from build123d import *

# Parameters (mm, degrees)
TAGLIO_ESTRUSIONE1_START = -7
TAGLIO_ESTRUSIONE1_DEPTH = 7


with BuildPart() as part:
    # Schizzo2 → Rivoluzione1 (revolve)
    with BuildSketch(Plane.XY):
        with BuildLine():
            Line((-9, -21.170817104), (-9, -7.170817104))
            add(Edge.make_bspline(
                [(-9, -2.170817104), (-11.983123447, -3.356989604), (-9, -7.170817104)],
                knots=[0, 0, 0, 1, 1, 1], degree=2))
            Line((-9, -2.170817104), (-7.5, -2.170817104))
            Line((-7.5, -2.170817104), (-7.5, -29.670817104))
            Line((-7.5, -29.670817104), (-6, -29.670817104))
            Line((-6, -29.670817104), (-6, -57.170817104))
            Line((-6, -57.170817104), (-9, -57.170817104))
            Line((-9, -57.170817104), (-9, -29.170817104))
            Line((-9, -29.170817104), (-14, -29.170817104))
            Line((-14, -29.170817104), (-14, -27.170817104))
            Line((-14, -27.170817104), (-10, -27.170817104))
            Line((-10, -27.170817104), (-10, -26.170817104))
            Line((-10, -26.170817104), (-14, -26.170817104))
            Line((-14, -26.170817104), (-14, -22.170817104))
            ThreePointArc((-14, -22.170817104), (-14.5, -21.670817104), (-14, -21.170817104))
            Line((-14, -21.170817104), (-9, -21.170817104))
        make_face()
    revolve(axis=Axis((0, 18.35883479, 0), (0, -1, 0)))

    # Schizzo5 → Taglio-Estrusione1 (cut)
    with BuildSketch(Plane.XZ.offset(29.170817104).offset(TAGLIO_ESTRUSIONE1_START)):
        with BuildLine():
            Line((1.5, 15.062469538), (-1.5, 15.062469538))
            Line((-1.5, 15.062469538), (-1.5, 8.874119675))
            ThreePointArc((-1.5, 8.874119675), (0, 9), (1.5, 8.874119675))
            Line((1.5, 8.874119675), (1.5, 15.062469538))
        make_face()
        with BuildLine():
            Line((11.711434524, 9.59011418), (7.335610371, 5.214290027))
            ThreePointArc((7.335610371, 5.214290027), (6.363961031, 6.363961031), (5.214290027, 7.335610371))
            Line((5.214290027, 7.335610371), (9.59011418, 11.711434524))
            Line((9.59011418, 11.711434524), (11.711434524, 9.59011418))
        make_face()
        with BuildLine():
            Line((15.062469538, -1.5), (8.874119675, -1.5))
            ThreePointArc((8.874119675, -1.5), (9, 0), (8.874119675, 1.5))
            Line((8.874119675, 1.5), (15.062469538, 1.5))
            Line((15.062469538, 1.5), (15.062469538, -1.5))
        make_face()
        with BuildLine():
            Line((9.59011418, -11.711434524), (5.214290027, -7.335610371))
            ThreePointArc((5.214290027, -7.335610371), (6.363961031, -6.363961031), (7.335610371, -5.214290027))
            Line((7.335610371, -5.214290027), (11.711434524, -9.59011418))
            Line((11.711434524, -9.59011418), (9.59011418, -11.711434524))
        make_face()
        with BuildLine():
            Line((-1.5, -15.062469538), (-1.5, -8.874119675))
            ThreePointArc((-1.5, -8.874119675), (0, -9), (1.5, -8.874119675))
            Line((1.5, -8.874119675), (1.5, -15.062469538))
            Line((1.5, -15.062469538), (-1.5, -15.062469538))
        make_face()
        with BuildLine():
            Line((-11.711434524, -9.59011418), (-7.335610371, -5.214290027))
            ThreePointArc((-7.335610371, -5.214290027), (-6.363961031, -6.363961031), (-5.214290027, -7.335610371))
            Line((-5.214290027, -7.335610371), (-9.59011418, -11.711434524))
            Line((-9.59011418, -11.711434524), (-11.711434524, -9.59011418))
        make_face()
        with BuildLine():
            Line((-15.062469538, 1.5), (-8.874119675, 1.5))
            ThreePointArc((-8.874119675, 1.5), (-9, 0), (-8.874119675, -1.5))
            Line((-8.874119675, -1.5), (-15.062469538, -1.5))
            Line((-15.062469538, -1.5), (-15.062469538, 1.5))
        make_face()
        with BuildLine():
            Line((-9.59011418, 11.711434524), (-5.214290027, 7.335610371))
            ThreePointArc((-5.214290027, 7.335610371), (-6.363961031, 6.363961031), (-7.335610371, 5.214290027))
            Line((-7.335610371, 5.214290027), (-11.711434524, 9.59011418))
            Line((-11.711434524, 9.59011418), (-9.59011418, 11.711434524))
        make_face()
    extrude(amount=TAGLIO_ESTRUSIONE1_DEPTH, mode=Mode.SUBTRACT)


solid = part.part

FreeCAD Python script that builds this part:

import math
import FreeCAD as App
import Part
import Sketcher

V = App.Vector
Q = App.Units.Quantity

doc = App.newDocument("Part")
body = doc.addObject("PartDesign::Body", "Body")

# Sketch on XY plane
sketch1 = doc.addObject("Sketcher::SketchObject", "Sketch")
body.addObject(sketch1)
sketch1.AttachmentSupport = (doc.XY_Plane, [""])
sketch1.MapMode = "FlatFace"
sketch1.addGeometry(Part.LineSegment(V(-9, -7.170817, 0), V(-9, -21.170817, 0)), False)
sketch1.addGeometry(Part.LineSegment(V(-9, -21.170817, 0), V(-14, -21.170817, 0)), False)
sketch1.addGeometry(Part.ArcOfCircle(Part.Circle(V(-14, -21.670817, 0), V(0, 0, 1), 0.5), math.radians(90), math.radians(270)), False)
sketch1.addGeometry(Part.LineSegment(V(-14, -22.170817, 0), V(-14, -26.170817, 0)), False)
sketch1.addGeometry(Part.LineSegment(V(-14, -26.170817, 0), V(-10, -26.170817, 0)), False)
sketch1.addGeometry(Part.LineSegment(V(-10, -26.170817, 0), V(-10, -27.170817, 0)), False)
sketch1.addGeometry(Part.LineSegment(V(-10, -27.170817, 0), V(-14, -27.170817, 0)), False)
sketch1.addGeometry(Part.LineSegment(V(-14, -27.170817, 0), V(-14, -29.170817, 0)), False)
sketch1.addGeometry(Part.LineSegment(V(-14, -29.170817, 0), V(-9, -29.170817, 0)), False)
sketch1.addGeometry(Part.LineSegment(V(-9, -29.170817, 0), V(-9, -57.170817, 0)), False)
sketch1.addGeometry(Part.LineSegment(V(-9, -57.170817, 0), V(-6, -57.170817, 0)), False)
sketch1.addGeometry(Part.LineSegment(V(-6, -57.170817, 0), V(-6, -29.670817, 0)), False)
sketch1.addGeometry(Part.LineSegment(V(-6, -29.670817, 0), V(-7.5, -29.670817, 0)), False)
sketch1.addGeometry(Part.LineSegment(V(-7.5, -29.670817, 0), V(-7.5, -2.170817, 0)), False)
sketch1.addGeometry(Part.LineSegment(V(-7.5, -2.170817, 0), V(-9, -2.170817, 0)), False)
sketch1.addGeometry(Part.BSplineCurve([V(-9, -2.170817, 0), V(-11.983123, -3.35699, 0), V(-9, -7.170817, 0)], [3, 3], [0, 1], False, 2, [1, 1, 1], False), False)
sketch1.addConstraint(Sketcher.Constraint("Block", 15))
sketch1.addConstraint(Sketcher.Constraint("Coincident", 0, 2, 1, 1))
sketch1.addConstraint(Sketcher.Constraint("Coincident", 1, 2, 2, 1))
sketch1.addConstraint(Sketcher.Constraint("Coincident", 2, 2, 3, 1))
sketch1.addConstraint(Sketcher.Constraint("Coincident", 3, 2, 4, 1))
sketch1.addConstraint(Sketcher.Constraint("Coincident", 4, 2, 5, 1))
sketch1.addConstraint(Sketcher.Constraint("Coincident", 5, 2, 6, 1))
sketch1.addConstraint(Sketcher.Constraint("Coincident", 6, 2, 7, 1))
sketch1.addConstraint(Sketcher.Constraint("Coincident", 7, 2, 8, 1))
sketch1.addConstraint(Sketcher.Constraint("Coincident", 8, 2, 9, 1))
sketch1.addConstraint(Sketcher.Constraint("Coincident", 9, 2, 10, 1))
sketch1.addConstraint(Sketcher.Constraint("Coincident", 10, 2, 11, 1))
sketch1.addConstraint(Sketcher.Constraint("Coincident", 11, 2, 12, 1))
sketch1.addConstraint(Sketcher.Constraint("Coincident", 12, 2, 13, 1))
sketch1.addConstraint(Sketcher.Constraint("Coincident", 13, 2, 14, 1))
sketch1.addConstraint(Sketcher.Constraint("Coincident", 14, 2, 15, 1))
sketch1.addConstraint(Sketcher.Constraint("Coincident", 15, 2, 0, 1))
sketch1.addConstraint(Sketcher.Constraint("Vertical", 0))
sketch1.addConstraint(Sketcher.Constraint("Horizontal", 1))
sketch1.addConstraint(Sketcher.Constraint("Vertical", 3))
sketch1.addConstraint(Sketcher.Constraint("Horizontal", 4))
sketch1.addConstraint(Sketcher.Constraint("Vertical", 5))
sketch1.addConstraint(Sketcher.Constraint("Horizontal", 6))
sketch1.addConstraint(Sketcher.Constraint("Vertical", 7))
sketch1.addConstraint(Sketcher.Constraint("Horizontal", 8))
sketch1.addConstraint(Sketcher.Constraint("Vertical", 9))
sketch1.addConstraint(Sketcher.Constraint("Horizontal", 10))
sketch1.addConstraint(Sketcher.Constraint("Vertical", 11))
sketch1.addConstraint(Sketcher.Constraint("Horizontal", 12))
sketch1.addConstraint(Sketcher.Constraint("Vertical", 13))
sketch1.addConstraint(Sketcher.Constraint("Horizontal", 14))
sketch1.addConstraint(Sketcher.Constraint("Radius", 2, Q("0.5 mm")))
sketch1.addConstraint(Sketcher.Constraint("DistanceX", 1, 2, 1, 1, Q("5 mm")))
sketch1.addConstraint(Sketcher.Constraint("DistanceX", 4, 1, 4, 2, Q("4 mm")))
sketch1.addConstraint(Sketcher.Constraint("DistanceX", 6, 2, 6, 1, Q("4 mm")))
sketch1.addConstraint(Sketcher.Constraint("DistanceX", 8, 1, 8, 2, Q("5 mm")))
sketch1.addConstraint(Sketcher.Constraint("DistanceX", 10, 1, 10, 2, Q("3 mm")))
sketch1.addConstraint(Sketcher.Constraint("DistanceY", 0, 2, 0, 1, Q("14 mm")))
sketch1.addConstraint(Sketcher.Constraint("DistanceY", 3, 2, 3, 1, Q("4 mm")))
sketch1.addConstraint(Sketcher.Constraint("DistanceY", 5, 2, 5, 1, Q("1 mm")))
sketch1.addConstraint(Sketcher.Constraint("DistanceY", 7, 2, 7, 1, Q("2 mm")))
sketch1.addConstraint(Sketcher.Constraint("DistanceY", 9, 2, 9, 1, Q("28 mm")))
sketch1.addConstraint(Sketcher.Constraint("DistanceX", 12, 2, 12, 1, Q("1.5 mm")))
sketch1.addConstraint(Sketcher.Constraint("DistanceX", 14, 2, 14, 1, Q("1.5 mm")))
sketch1.addConstraint(Sketcher.Constraint("DistanceY", 11, 1, 11, 2, Q("27.5 mm")))
sketch1.addConstraint(Sketcher.Constraint("DistanceX", 2, 3, -1, 1, Q("14 mm")))
revolution = doc.addObject("PartDesign::Revolution", "Revolution")
body.addObject(revolution)
revolution.Profile = sketch1
revolution.ReferenceAxis = (sketch1, ["V_Axis"])
revolution.Angle = 360

# Sketch on XZ plane
sketch2 = doc.addObject("Sketcher::SketchObject", "Sketch001")
body.addObject(sketch2)
sketch2.AttachmentSupport = (doc.XZ_Plane, [""])
sketch2.MapMode = "FlatFace"
sketch2.AttachmentOffset = App.Placement(V(0, 0, 22.170817), App.Rotation())
sketch2.addGeometry(Part.LineSegment(V(1.5, 15.1, 0), V(-1.5, 15.1, 0)), False)
sketch2.addGeometry(Part.LineSegment(V(-1.5, 15.1, 0), V(-1.5, 8.9, 0)), False)
sketch2.addGeometry(Part.ArcOfCircle(Part.Circle(V(0, 0, 0), V(0, 0, 1), 9), math.radians(80.41), math.radians(99.59)), False)
sketch2.addGeometry(Part.LineSegment(V(1.5, 8.9, 0), V(1.5, 15.1, 0)), False)
sketch2.addGeometry(Part.LineSegment(V(7.3, 5.2, 0), V(11.7, 9.6, 0)), False)
sketch2.addGeometry(Part.LineSegment(V(11.7, 9.6, 0), V(9.6, 11.7, 0)), False)
sketch2.addGeometry(Part.LineSegment(V(9.6, 11.7, 0), V(5.2, 7.3, 0)), False)
sketch2.addGeometry(Part.ArcOfCircle(Part.Circle(V(0, 0, 0), V(0, 0, 1), 9), math.radians(35.41), math.radians(54.59)), False)
sketch2.addGeometry(Part.LineSegment(V(8.9, -1.5, 0), V(15.1, -1.5, 0)), False)
sketch2.addGeometry(Part.LineSegment(V(15.1, -1.5, 0), V(15.1, 1.5, 0)), False)
sketch2.addGeometry(Part.LineSegment(V(15.1, 1.5, 0), V(8.9, 1.5, 0)), False)
sketch2.addGeometry(Part.ArcOfCircle(Part.Circle(V(0, 0, 0), V(0, 0, 1), 9), math.radians(-9.59), math.radians(9.59)), False)
sketch2.addGeometry(Part.LineSegment(V(5.2, -7.3, 0), V(9.6, -11.7, 0)), False)
sketch2.addGeometry(Part.LineSegment(V(9.6, -11.7, 0), V(11.7, -9.6, 0)), False)
sketch2.addGeometry(Part.LineSegment(V(11.7, -9.6, 0), V(7.3, -5.2, 0)), False)
sketch2.addGeometry(Part.ArcOfCircle(Part.Circle(V(0, 0, 0), V(0, 0, 1), 9), math.radians(-54.59), math.radians(-35.41)), False)
sketch2.addGeometry(Part.LineSegment(V(-1.5, -8.9, 0), V(-1.5, -15.1, 0)), False)
sketch2.addGeometry(Part.LineSegment(V(-1.5, -15.1, 0), V(1.5, -15.1, 0)), False)
sketch2.addGeometry(Part.LineSegment(V(1.5, -15.1, 0), V(1.5, -8.9, 0)), False)
sketch2.addGeometry(Part.ArcOfCircle(Part.Circle(V(0, 0, 0), V(0, 0, 1), 9), math.radians(-99.59), math.radians(-80.41)), False)
sketch2.addGeometry(Part.LineSegment(V(-7.3, -5.2, 0), V(-11.7, -9.6, 0)), False)
sketch2.addGeometry(Part.LineSegment(V(-11.7, -9.6, 0), V(-9.6, -11.7, 0)), False)
sketch2.addGeometry(Part.LineSegment(V(-9.6, -11.7, 0), V(-5.2, -7.3, 0)), False)
sketch2.addGeometry(Part.ArcOfCircle(Part.Circle(V(0, 0, 0), V(0, 0, 1), 9), math.radians(-144.59), math.radians(-125.41)), False)
sketch2.addGeometry(Part.LineSegment(V(-8.9, 1.5, 0), V(-15.1, 1.5, 0)), False)
sketch2.addGeometry(Part.LineSegment(V(-15.1, 1.5, 0), V(-15.1, -1.5, 0)), False)
sketch2.addGeometry(Part.LineSegment(V(-15.1, -1.5, 0), V(-8.9, -1.5, 0)), False)
sketch2.addGeometry(Part.ArcOfCircle(Part.Circle(V(0, 0, 0), V(0, 0, 1), 9), math.radians(170.41), math.radians(189.59)), False)
sketch2.addGeometry(Part.LineSegment(V(-5.2, 7.3, 0), V(-9.6, 11.7, 0)), False)
sketch2.addGeometry(Part.LineSegment(V(-9.6, 11.7, 0), V(-11.7, 9.6, 0)), False)
sketch2.addGeometry(Part.LineSegment(V(-11.7, 9.6, 0), V(-7.3, 5.2, 0)), False)
sketch2.addGeometry(Part.ArcOfCircle(Part.Circle(V(0, 0, 0), V(0, 0, 1), 9), math.radians(125.41), math.radians(144.59)), False)
sketch2.addConstraint(Sketcher.Constraint("Coincident", 0, 2, 1, 1))
sketch2.addConstraint(Sketcher.Constraint("Coincident", 1, 2, 2, 2))
sketch2.addConstraint(Sketcher.Constraint("Coincident", 2, 1, 3, 1))
sketch2.addConstraint(Sketcher.Constraint("Coincident", 3, 2, 0, 1))
sketch2.addConstraint(Sketcher.Constraint("Coincident", 4, 2, 5, 1))
sketch2.addConstraint(Sketcher.Constraint("Coincident", 5, 2, 6, 1))
sketch2.addConstraint(Sketcher.Constraint("Coincident", 6, 2, 7, 2))
sketch2.addConstraint(Sketcher.Constraint("Coincident", 7, 1, 4, 1))
sketch2.addConstraint(Sketcher.Constraint("Coincident", 8, 2, 9, 1))
sketch2.addConstraint(Sketcher.Constraint("Coincident", 9, 2, 10, 1))
sketch2.addConstraint(Sketcher.Constraint("Coincident", 10, 2, 11, 2))
sketch2.addConstraint(Sketcher.Constraint("Coincident", 11, 1, 8, 1))
sketch2.addConstraint(Sketcher.Constraint("Coincident", 12, 2, 13, 1))
sketch2.addConstraint(Sketcher.Constraint("Coincident", 13, 2, 14, 1))
sketch2.addConstraint(Sketcher.Constraint("Coincident", 14, 2, 15, 2))
sketch2.addConstraint(Sketcher.Constraint("Coincident", 15, 1, 12, 1))
sketch2.addConstraint(Sketcher.Constraint("Coincident", 16, 2, 17, 1))
sketch2.addConstraint(Sketcher.Constraint("Coincident", 17, 2, 18, 1))
sketch2.addConstraint(Sketcher.Constraint("Coincident", 18, 2, 19, 2))
sketch2.addConstraint(Sketcher.Constraint("Coincident", 19, 1, 16, 1))
sketch2.addConstraint(Sketcher.Constraint("Coincident", 20, 2, 21, 1))
sketch2.addConstraint(Sketcher.Constraint("Coincident", 21, 2, 22, 1))
sketch2.addConstraint(Sketcher.Constraint("Coincident", 22, 2, 23, 2))
sketch2.addConstraint(Sketcher.Constraint("Coincident", 23, 1, 20, 1))
sketch2.addConstraint(Sketcher.Constraint("Coincident", 24, 2, 25, 1))
sketch2.addConstraint(Sketcher.Constraint("Coincident", 25, 2, 26, 1))
sketch2.addConstraint(Sketcher.Constraint("Coincident", 26, 2, 27, 2))
sketch2.addConstraint(Sketcher.Constraint("Coincident", 27, 1, 24, 1))
sketch2.addConstraint(Sketcher.Constraint("Coincident", 28, 2, 29, 1))
sketch2.addConstraint(Sketcher.Constraint("Coincident", 29, 2, 30, 1))
sketch2.addConstraint(Sketcher.Constraint("Coincident", 30, 2, 31, 2))
sketch2.addConstraint(Sketcher.Constraint("Coincident", 31, 1, 28, 1))
sketch2.addConstraint(Sketcher.Constraint("Horizontal", 0))
sketch2.addConstraint(Sketcher.Constraint("Vertical", 1))
sketch2.addConstraint(Sketcher.Constraint("Vertical", 3))
sketch2.addConstraint(Sketcher.Constraint("Horizontal", 8))
sketch2.addConstraint(Sketcher.Constraint("Vertical", 9))
sketch2.addConstraint(Sketcher.Constraint("Horizontal", 10))
sketch2.addConstraint(Sketcher.Constraint("Vertical", 16))
sketch2.addConstraint(Sketcher.Constraint("Horizontal", 17))
sketch2.addConstraint(Sketcher.Constraint("Vertical", 18))
sketch2.addConstraint(Sketcher.Constraint("Horizontal", 24))
sketch2.addConstraint(Sketcher.Constraint("Vertical", 25))
sketch2.addConstraint(Sketcher.Constraint("Horizontal", 26))
sketch2.addConstraint(Sketcher.Constraint("Coincident", 2, 3, -1, 1))
sketch2.addConstraint(Sketcher.Constraint("Coincident", 7, 3, -1, 1))
sketch2.addConstraint(Sketcher.Constraint("Coincident", 11, 3, -1, 1))
sketch2.addConstraint(Sketcher.Constraint("Coincident", 15, 3, -1, 1))
sketch2.addConstraint(Sketcher.Constraint("Coincident", 19, 3, -1, 1))
sketch2.addConstraint(Sketcher.Constraint("Coincident", 23, 3, -1, 1))
sketch2.addConstraint(Sketcher.Constraint("Coincident", 27, 3, -1, 1))
sketch2.addConstraint(Sketcher.Constraint("Coincident", 31, 3, -1, 1))
sketch2.addConstraint(Sketcher.Constraint("Equal", 2, 7))
sketch2.addConstraint(Sketcher.Constraint("Equal", 7, 11))
sketch2.addConstraint(Sketcher.Constraint("Equal", 11, 15))
sketch2.addConstraint(Sketcher.Constraint("Equal", 15, 19))
sketch2.addConstraint(Sketcher.Constraint("Equal", 19, 23))
sketch2.addConstraint(Sketcher.Constraint("Equal", 23, 27))
sketch2.addConstraint(Sketcher.Constraint("Equal", 27, 31))
sketch2.addConstraint(Sketcher.Constraint("Symmetric", 3, 2, 16, 2, -1, 1))
sketch2.addConstraint(Sketcher.Constraint("Symmetric", 4, 2, 20, 2, -1, 1))
sketch2.addConstraint(Sketcher.Constraint("Symmetric", 5, 2, 21, 2, -1, 1))
sketch2.addConstraint(Sketcher.Constraint("Symmetric", 8, 2, 24, 2, -1, 1))
sketch2.addConstraint(Sketcher.Constraint("Symmetric", 12, 2, 28, 2, -1, 1))
sketch2.addConstraint(Sketcher.Constraint("Symmetric", 13, 2, 29, 2, -1, 1))
sketch2.addConstraint(Sketcher.Constraint("Symmetric", 13, 2, 20, 2, -2))
sketch2.addConstraint(Sketcher.Constraint("Symmetric", 12, 2, 21, 2, -2))
sketch2.addConstraint(Sketcher.Constraint("Perpendicular", 4, 5))
sketch2.addConstraint(Sketcher.Constraint("Perpendicular", 5, 6))
sketch2.addConstraint(Sketcher.Constraint("Perpendicular", 6, 12))
sketch2.addConstraint(Sketcher.Constraint("Perpendicular", 12, 13))
sketch2.addConstraint(Sketcher.Constraint("Perpendicular", 13, 14))
sketch2.addConstraint(Sketcher.Constraint("Perpendicular", 14, 20))
sketch2.addConstraint(Sketcher.Constraint("Perpendicular", 21, 22))
sketch2.addConstraint(Sketcher.Constraint("Perpendicular", 22, 28))
sketch2.addConstraint(Sketcher.Constraint("Perpendicular", 29, 30))
sketch2.addConstraint(Sketcher.Constraint("Horizontal", 1, 2, 2, 1))
sketch2.addConstraint(Sketcher.Constraint("Horizontal", 18, 2, 19, 1))
sketch2.addConstraint(Sketcher.Constraint("Horizontal", 10, 2, 24, 2))
sketch2.addConstraint(Sketcher.Constraint("Horizontal", 11, 1, 25, 2))
sketch2.addConstraint(Sketcher.Constraint("Equal", 26, 1))
sketch2.addConstraint(Sketcher.Constraint("Equal", 17, 9))
sketch2.addConstraint(Sketcher.Constraint("Equal", 4, 6))
sketch2.addConstraint(Sketcher.Constraint("Radius", 2, Q("9 mm")))
sketch2.addConstraint(Sketcher.Constraint("DistanceX", 0, 2, 0, 1, Q("3 mm")))
sketch2.addConstraint(Sketcher.Constraint("Distance", 5, Q("3 mm")))
sketch2.addConstraint(Sketcher.Constraint("DistanceX", 8, 1, 8, 2, Q("6.18835 mm")))
sketch2.addConstraint(Sketcher.Constraint("Distance", 4, Q("6.18835 mm")))
pocket1 = doc.addObject("PartDesign::Pocket", "Pocket")
body.addObject(pocket1)
pocket1.Profile = sketch2
pocket1.Length = 7
pocket1.Reversed = True

doc.recompute()
